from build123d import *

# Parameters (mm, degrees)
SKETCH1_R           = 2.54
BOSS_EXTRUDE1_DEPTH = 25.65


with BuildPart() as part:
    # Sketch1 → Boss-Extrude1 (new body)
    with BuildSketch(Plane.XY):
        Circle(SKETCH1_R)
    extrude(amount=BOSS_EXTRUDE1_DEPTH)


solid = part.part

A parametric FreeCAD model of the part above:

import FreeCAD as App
import Part
import Sketcher

V = App.Vector
Q = App.Units.Quantity

doc = App.newDocument("Part")
body = doc.addObject("PartDesign::Body", "Body")

sketch1 = body.newObject("Sketcher::SketchObject", "Sketch")
sketch1.AttachmentSupport = (doc.getObject("XY_Plane"), [""])
sketch1.MapMode = "FlatFace"
sketch1.addGeometry(Part.Circle(V(0, 0, 0), V(0, 0, 1), 2.54), False)
sketch1.addConstraint(Sketcher.Constraint("Coincident", 0, 3, -1, 1))
sketch1.addConstraint(Sketcher.Constraint("Diameter", 0, Q("0.2 in")))
pad1 = body.newObject("PartDesign::Pad", "Pad")
pad1.Profile = sketch1
pad1.Length = 25.65

doc.recompute()
